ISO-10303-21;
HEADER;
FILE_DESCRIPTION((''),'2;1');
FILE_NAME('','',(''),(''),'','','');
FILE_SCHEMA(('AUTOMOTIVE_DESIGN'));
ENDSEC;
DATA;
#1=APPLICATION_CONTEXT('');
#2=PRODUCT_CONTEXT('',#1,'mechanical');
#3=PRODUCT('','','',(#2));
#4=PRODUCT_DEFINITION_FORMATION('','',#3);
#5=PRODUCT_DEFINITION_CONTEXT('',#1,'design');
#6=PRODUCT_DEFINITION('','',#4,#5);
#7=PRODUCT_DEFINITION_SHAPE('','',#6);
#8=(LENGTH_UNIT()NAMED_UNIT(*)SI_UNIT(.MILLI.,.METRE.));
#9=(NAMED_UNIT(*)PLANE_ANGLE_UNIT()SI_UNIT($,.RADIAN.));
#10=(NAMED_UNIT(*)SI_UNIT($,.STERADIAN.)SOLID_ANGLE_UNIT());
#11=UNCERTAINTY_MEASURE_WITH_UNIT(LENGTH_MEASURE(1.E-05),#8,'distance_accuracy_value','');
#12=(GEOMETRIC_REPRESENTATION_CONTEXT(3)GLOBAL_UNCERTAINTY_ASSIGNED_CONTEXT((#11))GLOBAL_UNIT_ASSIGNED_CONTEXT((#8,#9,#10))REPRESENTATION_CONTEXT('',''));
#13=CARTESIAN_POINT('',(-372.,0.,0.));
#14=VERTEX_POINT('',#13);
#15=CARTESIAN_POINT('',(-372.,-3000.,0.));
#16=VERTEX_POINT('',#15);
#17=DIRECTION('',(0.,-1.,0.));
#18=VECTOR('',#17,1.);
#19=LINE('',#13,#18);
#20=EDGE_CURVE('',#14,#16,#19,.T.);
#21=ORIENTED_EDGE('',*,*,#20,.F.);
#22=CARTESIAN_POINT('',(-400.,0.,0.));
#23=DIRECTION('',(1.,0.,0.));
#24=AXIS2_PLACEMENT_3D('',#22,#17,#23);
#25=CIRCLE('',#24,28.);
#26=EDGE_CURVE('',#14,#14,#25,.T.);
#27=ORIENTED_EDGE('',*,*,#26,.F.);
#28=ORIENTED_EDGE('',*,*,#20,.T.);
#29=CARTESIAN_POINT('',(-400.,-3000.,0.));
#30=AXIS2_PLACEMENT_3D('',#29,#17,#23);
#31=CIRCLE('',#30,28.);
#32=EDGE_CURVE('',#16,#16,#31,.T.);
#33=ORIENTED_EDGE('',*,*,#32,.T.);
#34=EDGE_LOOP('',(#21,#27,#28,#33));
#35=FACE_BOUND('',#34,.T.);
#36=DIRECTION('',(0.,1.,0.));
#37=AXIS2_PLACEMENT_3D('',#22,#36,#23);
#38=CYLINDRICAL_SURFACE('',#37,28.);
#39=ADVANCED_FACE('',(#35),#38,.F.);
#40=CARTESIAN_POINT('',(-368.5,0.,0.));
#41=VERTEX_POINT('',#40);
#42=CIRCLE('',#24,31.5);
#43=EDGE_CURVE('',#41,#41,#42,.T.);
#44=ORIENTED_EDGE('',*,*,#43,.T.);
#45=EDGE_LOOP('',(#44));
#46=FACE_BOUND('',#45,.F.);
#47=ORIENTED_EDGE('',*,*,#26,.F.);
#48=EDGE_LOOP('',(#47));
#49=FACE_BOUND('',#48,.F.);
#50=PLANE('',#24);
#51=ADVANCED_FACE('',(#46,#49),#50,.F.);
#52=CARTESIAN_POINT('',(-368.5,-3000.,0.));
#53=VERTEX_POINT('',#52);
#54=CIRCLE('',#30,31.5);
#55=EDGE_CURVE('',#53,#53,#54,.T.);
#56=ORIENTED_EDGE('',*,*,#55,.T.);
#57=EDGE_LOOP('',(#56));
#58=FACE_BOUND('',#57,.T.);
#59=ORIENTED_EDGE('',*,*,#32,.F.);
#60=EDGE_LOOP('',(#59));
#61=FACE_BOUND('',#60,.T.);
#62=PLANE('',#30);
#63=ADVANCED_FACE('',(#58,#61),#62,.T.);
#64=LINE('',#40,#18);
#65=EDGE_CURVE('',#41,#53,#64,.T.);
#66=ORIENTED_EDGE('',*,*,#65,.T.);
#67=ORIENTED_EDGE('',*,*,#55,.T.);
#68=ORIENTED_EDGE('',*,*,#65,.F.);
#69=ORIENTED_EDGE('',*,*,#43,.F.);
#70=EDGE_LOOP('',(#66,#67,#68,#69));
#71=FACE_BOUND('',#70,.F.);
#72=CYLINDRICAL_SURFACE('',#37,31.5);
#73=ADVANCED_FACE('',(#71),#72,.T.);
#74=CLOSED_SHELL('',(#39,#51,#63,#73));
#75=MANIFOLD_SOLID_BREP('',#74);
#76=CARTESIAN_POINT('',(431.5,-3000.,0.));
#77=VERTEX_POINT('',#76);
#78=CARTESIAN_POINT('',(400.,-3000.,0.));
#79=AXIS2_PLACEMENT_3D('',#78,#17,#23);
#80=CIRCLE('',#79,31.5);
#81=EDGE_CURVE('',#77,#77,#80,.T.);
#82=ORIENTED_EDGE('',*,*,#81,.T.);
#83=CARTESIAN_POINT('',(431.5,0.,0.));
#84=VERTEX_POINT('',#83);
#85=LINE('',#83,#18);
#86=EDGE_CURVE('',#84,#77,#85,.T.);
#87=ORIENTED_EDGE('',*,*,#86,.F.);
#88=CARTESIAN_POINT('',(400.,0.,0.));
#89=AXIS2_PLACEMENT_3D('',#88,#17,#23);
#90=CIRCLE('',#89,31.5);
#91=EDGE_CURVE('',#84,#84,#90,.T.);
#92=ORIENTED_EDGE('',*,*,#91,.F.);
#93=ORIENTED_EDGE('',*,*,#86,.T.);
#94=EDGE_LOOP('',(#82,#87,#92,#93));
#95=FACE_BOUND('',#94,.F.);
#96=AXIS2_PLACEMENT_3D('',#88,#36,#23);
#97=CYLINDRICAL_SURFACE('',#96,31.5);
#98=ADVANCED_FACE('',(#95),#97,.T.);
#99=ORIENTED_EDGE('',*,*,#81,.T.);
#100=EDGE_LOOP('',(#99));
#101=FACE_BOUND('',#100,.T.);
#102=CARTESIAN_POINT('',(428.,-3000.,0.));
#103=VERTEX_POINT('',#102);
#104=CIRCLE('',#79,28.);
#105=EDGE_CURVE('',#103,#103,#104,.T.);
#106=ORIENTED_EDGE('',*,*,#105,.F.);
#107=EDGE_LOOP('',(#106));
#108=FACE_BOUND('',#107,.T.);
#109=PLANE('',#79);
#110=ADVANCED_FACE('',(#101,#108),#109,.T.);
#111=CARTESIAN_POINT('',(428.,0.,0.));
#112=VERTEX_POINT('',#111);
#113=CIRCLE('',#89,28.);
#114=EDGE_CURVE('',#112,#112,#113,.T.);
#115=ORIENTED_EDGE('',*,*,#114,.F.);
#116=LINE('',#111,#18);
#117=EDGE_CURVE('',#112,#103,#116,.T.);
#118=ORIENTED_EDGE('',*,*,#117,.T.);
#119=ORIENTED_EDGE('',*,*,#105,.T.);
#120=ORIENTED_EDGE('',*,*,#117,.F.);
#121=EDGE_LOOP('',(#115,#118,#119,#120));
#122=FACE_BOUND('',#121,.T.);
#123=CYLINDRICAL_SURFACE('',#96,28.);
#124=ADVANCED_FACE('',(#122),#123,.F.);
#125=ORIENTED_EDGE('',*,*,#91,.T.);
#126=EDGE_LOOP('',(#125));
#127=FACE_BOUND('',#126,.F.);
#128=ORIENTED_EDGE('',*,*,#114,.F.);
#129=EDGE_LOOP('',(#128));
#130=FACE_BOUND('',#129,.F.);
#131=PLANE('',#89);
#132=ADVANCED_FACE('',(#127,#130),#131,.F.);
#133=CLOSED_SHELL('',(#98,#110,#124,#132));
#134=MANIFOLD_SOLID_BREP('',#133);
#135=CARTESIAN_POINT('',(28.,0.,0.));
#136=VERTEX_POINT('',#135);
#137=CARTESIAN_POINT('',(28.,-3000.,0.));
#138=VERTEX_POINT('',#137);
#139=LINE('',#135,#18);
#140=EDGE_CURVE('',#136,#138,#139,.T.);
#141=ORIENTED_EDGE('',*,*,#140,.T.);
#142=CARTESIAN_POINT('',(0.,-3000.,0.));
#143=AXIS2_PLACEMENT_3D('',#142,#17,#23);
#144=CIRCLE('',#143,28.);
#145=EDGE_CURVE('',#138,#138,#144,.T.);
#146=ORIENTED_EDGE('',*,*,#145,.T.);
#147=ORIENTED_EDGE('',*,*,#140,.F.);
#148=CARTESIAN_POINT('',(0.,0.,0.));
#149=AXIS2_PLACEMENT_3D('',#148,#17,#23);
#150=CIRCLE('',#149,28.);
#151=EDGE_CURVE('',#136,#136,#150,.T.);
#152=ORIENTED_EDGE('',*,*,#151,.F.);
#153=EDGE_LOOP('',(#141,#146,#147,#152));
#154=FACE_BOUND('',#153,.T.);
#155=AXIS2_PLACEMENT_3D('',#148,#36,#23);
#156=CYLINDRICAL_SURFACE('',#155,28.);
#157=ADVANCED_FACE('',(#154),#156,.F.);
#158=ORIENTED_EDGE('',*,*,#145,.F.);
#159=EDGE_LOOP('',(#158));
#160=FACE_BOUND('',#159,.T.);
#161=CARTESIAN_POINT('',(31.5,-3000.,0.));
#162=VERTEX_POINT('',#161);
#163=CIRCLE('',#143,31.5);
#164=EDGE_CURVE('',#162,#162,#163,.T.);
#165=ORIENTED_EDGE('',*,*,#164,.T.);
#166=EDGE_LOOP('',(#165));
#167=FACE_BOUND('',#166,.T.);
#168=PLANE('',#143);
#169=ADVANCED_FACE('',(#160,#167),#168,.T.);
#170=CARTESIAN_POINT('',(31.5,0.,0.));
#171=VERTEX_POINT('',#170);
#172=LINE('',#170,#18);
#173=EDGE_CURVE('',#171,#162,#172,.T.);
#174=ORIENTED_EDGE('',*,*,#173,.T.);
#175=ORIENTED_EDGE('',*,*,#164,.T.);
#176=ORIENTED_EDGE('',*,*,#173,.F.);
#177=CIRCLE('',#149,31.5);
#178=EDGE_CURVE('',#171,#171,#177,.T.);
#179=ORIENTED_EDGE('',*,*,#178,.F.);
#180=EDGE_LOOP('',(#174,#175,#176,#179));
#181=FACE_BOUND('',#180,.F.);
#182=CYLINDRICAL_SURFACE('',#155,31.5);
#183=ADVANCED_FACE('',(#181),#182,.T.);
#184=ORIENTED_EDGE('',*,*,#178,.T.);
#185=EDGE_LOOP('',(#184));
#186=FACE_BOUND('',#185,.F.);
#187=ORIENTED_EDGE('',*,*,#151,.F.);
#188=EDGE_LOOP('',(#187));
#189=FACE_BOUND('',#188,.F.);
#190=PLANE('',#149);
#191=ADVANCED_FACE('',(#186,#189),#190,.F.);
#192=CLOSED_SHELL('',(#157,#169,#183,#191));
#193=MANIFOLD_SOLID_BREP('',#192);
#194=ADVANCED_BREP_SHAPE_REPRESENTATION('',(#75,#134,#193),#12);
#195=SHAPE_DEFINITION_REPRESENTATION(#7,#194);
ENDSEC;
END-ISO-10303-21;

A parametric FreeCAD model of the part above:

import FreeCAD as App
import Part
import Sketcher
Q = App.Units.Quantity

doc = App.newDocument("Part")
body = doc.addObject("PartDesign::Body", "Body")
body.AllowCompound = True

# Sketch on XZ plane
sketch1 = doc.addObject("Sketcher::SketchObject", "Sketch")
body.addObject(sketch1)
sketch1.AttachmentSupport = (doc.XZ_Plane, [""])
sketch1.MapMode = "FlatFace"
sketch1.addGeometry([
    Part.Circle(App.Vector(-400, 0, 0), App.Vector(0, 0, 1), 31.5),  # 0
    Part.Circle(App.Vector(-400, 0, 0), App.Vector(0, 0, 1), 28),  # 1
    Part.Circle(App.Vector(0, 0, 0), App.Vector(0, 0, 1), 31.5),  # 2
    Part.Circle(App.Vector(0, 0, 0), App.Vector(0, 0, 1), 28),  # 3
    Part.Circle(App.Vector(400, 0, 0), App.Vector(0, 0, 1), 31.5),  # 4
    Part.Circle(App.Vector(400, 0, 0), App.Vector(0, 0, 1), 28),  # 5
], False)
sketch1.addConstraint([
    Sketcher.Constraint("Coincident", 2, 3, -1, 1),
    Sketcher.Constraint("Coincident", 3, 3, -1, 1),
    Sketcher.Constraint("Coincident", 1, 3, 0, 3),
    Sketcher.Constraint("Coincident", 5, 3, 4, 3),
    Sketcher.Constraint("Equal", 0, 2),
    Sketcher.Constraint("Equal", 1, 3),
    Sketcher.Constraint("Equal", 2, 4),
    Sketcher.Constraint("Equal", 3, 5),
    Sketcher.Constraint("Symmetric", 0, 3, 4, 3, -1, 1),
    Sketcher.Constraint("PointOnObject", 0, 3, -1),
    Sketcher.Constraint("Diameter", 0, Q("63 mm")),
    Sketcher.Constraint("Diameter", 1, Q("56 mm")),
    Sketcher.Constraint("DistanceX", 0, 3, -1, 1, Q("400 mm")),
])
pad1 = doc.addObject("PartDesign::Pad", "Pad")
body.addObject(pad1)
pad1.Profile = sketch1
pad1.Length = 3000

doc.recompute()
